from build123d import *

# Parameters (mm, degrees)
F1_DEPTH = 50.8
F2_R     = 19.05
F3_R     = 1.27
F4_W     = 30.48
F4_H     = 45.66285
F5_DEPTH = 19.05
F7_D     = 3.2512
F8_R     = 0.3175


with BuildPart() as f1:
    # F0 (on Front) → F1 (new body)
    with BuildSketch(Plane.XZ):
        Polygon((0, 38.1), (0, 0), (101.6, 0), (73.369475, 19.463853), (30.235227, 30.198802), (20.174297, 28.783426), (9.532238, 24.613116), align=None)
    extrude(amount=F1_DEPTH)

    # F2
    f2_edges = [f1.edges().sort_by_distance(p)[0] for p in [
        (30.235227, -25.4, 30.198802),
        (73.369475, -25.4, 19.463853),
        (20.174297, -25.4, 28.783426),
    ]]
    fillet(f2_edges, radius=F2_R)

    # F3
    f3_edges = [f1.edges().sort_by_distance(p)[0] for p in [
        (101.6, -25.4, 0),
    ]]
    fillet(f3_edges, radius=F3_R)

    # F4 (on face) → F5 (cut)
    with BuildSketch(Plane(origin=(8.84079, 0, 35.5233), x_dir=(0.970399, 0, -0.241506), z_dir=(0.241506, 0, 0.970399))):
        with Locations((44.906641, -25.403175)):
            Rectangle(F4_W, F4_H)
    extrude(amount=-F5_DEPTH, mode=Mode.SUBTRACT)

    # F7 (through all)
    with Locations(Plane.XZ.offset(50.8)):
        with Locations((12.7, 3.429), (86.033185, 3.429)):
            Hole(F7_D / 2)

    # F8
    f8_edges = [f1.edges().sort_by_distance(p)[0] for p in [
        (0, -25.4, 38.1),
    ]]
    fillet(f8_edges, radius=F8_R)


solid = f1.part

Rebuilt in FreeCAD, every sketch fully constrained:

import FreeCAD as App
import Part
import Sketcher
Q = App.Units.Quantity


def edges_at(feature, points):
    """Names of the edges that pass closest to the given points."""
    edges = feature.Shape.Edges
    near = lambda p: min(range(len(edges)), key=lambda i: edges[i].distToShape(Part.Vertex(*p))[0])
    return sorted({f"Edge{near(p) + 1}" for p in points})


def add_polygon(sketch, points):
    """Adds a closed chain of lines whose ends are joined by coincident constraints."""
    first, n = sketch.GeometryCount, len(points)
    for a, b in zip(points, points[1:] + points[:1]):
        sketch.addGeometry(Part.LineSegment(App.Vector(*a, 0), App.Vector(*b, 0)), False)
    for i in range(n):
        sketch.addConstraint(Sketcher.Constraint("Coincident", first + i, 2, first + (i + 1) % n, 1))

doc = App.newDocument("Part")
body = doc.addObject("PartDesign::Body", "Body")

# Sketch on XZ plane
sketch1 = body.newObject("Sketcher::SketchObject", "Sketch")
sketch1.AttachmentSupport = (doc.getObject("XZ_Plane"), [""])
sketch1.MapMode = "FlatFace"
add_polygon(sketch1, [(0, 38), (0, 0), (102, 0), (73, 19), (30, 30), (20, 29), (10, 25)])  # lines 0-6
sketch1.addConstraint([
    Sketcher.Constraint("Vertical", 0),
    Sketcher.Constraint("Horizontal", 1),
    Sketcher.Constraint("Coincident", 0, 2, -1, 1),
    Sketcher.Constraint("DistanceX", 1, 1, 1, 2, Q("4 in")),
    Sketcher.Constraint("DistanceY", 0, 2, 0, 1, Q("1.5 in")),
    Sketcher.Constraint("Distance", 4, Q("0.4 in")),
    Sketcher.Constraint("Distance", 2, Q("1.35 in")),
    Sketcher.Constraint("Distance", 3, Q("1.75 in")),
    Sketcher.Constraint("Distance", 5, Q("0.45 in")),
    Sketcher.Constraint("DistanceY", 3, 2, 6, 2, Q("7.901198 mm")),
    Sketcher.Constraint("DistanceY", 2, 2, 3, 2, Q("10.734949 mm")),
    Sketcher.Constraint("DistanceX", 4, 2, 3, 2, Q("10.06093 mm")),
    Sketcher.Constraint("DistanceX", 5, 2, 4, 2, Q("10.642059 mm")),
])
pad1 = body.newObject("PartDesign::Pad", "Pad")
pad1.Profile = sketch1
pad1.Length = Q("2 in")
doc.recompute()

fillet = body.newObject("PartDesign::Fillet", "Fillet")
fillet.Base = (pad1, edges_at(pad1, [(30.235, -25.4, 30.199), (73.369, -25.4, 19.464), (20.174, -25.4, 28.783)]))
fillet.Radius = Q("0.75 in")
doc.recompute()

fillet2 = body.newObject("PartDesign::Fillet", "Fillet001")
fillet2.Base = (fillet, edges_at(fillet, [(101.6, -25.4, 0)]))
fillet2.Radius = Q("0.05 in")

# Sketch on an angled plane
sketch2 = body.newObject("Sketcher::SketchObject", "Sketch001")
sketch2.Placement = App.Placement(App.Vector(8.84079, 0, 35.5233), App.Rotation(App.Vector(0.970399307, 0, -0.241506076), App.Vector(0, 1, 0), App.Vector(0.241506076, 0, 0.970399307), "ZXY"))
add_polygon(sketch2, [(30, -3), (30, -48), (60, -48), (60, -3)])  # lines 0-3
sketch2.addConstraint([
    Sketcher.Constraint("Vertical", 0),
    Sketcher.Constraint("Horizontal", 1),
    Sketcher.Constraint("Vertical", 2),
    Sketcher.Constraint("Horizontal", 3),
    Sketcher.Constraint("DistanceX", 1, 1, 1, 2, Q("1.2 in")),
    Sketcher.Constraint("DistanceY", 0, 2, -1, 1, Q("1.899 in")),
    Sketcher.Constraint("DistanceY", 0, 2, 0, 1, Q("45.66285 mm")),
    Sketcher.Constraint("DistanceX", -1, 1, 0, 2, Q("29.666641 mm")),
])
pocket1 = body.newObject("PartDesign::Pocket", "Pocket")
pocket1.Profile = sketch2
pocket1.Length = Q("0.75 in")

# Sketch on XZ plane
sketch3 = body.newObject("Sketcher::SketchObject", "Sketch002")
sketch3.AttachmentSupport = (doc.getObject("XZ_Plane"), [""])
sketch3.MapMode = "FlatFace"
sketch3.AttachmentOffset = App.Placement(App.Vector(0, 0, 2 * 25.4), App.Rotation())
sketch3.addGeometry([
    Part.Circle(App.Vector(12.7, 3.4, 0), App.Vector(0, 0, 1), 1.6),
    Part.Circle(App.Vector(86, 3.4, 0), App.Vector(0, 0, 1), 1.6),
], False)
sketch3.addConstraint([
    Sketcher.Constraint("Equal", 0, 1),
    Sketcher.Constraint("Horizontal", 0, 3, 1, 3),
    Sketcher.Constraint("Diameter", 0, Q("0.128 in")),
    Sketcher.Constraint("DistanceX", -1, 1, 0, 3, Q("0.5 in")),
    Sketcher.Constraint("DistanceY", -1, 1, 0, 3, Q("0.135 in")),
    Sketcher.Constraint("DistanceX", -1, 1, 1, 3, Q("86.033185 mm")),
])
doc.recompute()
hole = body.newObject("PartDesign::Hole", "Hole")
hole.Profile = sketch3
hole.ThreadType = "None"
hole.Diameter = Q("0.128 in")
hole.DepthType = "ThroughAll"
doc.recompute()

fillet3 = body.newObject("PartDesign::Fillet", "Fillet002")
fillet3.Base = (hole, edges_at(hole, [(0, -25.4, 38.1)]))
fillet3.Radius = Q("0.0125 in")

doc.recompute()
